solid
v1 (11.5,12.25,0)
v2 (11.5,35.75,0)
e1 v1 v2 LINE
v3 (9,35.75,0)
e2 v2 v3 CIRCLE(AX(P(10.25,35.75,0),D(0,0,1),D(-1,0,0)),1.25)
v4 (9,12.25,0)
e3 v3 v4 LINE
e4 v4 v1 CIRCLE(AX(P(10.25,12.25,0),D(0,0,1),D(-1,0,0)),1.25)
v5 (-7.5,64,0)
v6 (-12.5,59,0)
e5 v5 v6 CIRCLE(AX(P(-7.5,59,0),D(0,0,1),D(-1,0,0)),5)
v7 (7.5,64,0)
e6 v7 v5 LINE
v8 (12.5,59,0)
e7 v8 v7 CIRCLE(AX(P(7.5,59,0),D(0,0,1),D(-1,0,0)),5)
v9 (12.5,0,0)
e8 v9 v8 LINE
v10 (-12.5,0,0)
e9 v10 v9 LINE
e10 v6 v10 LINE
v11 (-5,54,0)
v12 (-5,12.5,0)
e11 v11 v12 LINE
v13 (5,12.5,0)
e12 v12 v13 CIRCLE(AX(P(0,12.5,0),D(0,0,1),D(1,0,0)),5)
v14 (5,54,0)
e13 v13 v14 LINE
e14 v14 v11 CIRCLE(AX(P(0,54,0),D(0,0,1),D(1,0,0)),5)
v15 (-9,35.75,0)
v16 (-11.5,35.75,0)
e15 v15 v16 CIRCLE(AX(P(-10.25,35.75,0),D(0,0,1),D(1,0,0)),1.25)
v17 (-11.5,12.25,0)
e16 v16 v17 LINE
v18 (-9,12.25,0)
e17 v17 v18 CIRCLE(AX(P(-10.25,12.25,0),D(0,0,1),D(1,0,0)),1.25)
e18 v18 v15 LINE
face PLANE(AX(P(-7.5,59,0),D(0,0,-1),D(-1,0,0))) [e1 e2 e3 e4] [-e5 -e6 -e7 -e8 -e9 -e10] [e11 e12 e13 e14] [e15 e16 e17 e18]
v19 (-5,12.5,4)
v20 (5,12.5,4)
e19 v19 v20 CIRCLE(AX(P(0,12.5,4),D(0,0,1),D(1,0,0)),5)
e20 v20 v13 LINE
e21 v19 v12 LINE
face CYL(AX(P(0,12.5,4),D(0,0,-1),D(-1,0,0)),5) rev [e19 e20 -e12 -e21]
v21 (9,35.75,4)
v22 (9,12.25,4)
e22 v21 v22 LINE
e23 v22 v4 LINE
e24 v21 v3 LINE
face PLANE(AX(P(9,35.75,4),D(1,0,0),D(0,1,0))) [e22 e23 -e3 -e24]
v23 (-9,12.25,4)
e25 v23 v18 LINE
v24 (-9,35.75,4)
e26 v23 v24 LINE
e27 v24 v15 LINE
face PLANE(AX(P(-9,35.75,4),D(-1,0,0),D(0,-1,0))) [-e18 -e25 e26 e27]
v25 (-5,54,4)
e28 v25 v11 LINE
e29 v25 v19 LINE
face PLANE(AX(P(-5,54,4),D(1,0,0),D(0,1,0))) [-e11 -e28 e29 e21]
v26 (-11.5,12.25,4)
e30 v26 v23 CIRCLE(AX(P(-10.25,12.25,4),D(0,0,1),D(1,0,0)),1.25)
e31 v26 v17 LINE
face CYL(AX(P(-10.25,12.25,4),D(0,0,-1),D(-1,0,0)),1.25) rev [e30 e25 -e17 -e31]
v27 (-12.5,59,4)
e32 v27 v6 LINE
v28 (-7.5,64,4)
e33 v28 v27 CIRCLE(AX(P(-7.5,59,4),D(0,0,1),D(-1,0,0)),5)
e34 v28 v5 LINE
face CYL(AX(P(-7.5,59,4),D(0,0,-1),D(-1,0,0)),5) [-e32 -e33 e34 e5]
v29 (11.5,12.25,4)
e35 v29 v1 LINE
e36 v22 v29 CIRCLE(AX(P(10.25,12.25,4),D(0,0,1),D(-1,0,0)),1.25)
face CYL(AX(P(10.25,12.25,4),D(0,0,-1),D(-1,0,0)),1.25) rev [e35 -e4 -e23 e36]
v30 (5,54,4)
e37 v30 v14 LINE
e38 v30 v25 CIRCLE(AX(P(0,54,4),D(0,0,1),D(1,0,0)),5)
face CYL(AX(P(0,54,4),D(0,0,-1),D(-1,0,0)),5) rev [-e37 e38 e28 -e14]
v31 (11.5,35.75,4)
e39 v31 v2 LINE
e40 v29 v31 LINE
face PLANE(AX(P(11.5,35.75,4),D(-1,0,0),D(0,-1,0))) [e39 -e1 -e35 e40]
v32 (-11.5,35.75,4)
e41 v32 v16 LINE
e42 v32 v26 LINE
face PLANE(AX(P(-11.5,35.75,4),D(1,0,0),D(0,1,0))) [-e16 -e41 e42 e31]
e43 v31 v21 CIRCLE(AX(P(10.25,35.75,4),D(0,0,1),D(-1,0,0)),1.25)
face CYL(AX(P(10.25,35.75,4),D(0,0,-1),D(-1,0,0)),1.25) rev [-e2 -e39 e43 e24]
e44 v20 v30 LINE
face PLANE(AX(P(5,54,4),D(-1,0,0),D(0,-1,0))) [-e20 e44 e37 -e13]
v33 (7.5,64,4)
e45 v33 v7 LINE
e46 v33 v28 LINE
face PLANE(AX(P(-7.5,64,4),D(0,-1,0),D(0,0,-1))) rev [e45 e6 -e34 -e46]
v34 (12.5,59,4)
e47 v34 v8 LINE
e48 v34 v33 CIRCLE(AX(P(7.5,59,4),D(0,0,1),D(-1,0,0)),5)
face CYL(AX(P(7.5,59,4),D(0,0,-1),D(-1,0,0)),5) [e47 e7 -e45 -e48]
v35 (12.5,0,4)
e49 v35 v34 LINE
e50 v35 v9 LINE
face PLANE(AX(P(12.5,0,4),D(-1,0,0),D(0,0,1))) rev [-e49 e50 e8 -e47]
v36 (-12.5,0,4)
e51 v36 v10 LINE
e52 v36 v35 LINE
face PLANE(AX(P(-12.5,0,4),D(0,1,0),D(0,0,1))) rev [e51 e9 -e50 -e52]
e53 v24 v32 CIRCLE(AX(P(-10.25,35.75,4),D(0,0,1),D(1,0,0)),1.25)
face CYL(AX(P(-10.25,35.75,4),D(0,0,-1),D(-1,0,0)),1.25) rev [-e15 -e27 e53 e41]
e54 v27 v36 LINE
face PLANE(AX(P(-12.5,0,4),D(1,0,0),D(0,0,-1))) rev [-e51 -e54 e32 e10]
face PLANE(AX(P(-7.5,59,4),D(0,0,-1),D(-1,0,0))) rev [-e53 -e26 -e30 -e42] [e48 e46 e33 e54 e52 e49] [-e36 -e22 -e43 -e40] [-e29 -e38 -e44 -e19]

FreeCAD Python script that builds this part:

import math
import FreeCAD as App
import Part
import Sketcher

V = App.Vector
Q = App.Units.Quantity

doc = App.newDocument("Part")
params = doc.addObject("Spreadsheet::Sheet", "Params")
for row, (alias, value) in enumerate([
    ("sketch1_radius", "5 mm"),
    ("sketch1_width", "25 mm"),
    ("sketch1_height", "59 mm"),
    ("sketch1_radius2", "1.25 mm"),
    ("sketch1_height2", "23.5 mm"),
    ("pad1_length", "4 mm"),
], start=1):
    params.set(f"A{row}", alias)
    params.set(f"B{row}", "=" + value)
    params.setAlias(f"B{row}", alias)

body = doc.addObject("PartDesign::Body", "Body")

# Sketch on XY plane
sketch1 = body.newObject("Sketcher::SketchObject", "Sketch")
sketch1.AttachmentSupport = (doc.getObject("XY_Plane"), [""])
sketch1.MapMode = "FlatFace"
sketch1.addGeometry(Part.LineSegment(V(-12.5, 0, 0), V(12.5, 0, 0)), False)
sketch1.addGeometry(Part.LineSegment(V(12.5, 0, 0), V(12.5, 59, 0)), False)
sketch1.addGeometry(Part.ArcOfCircle(Part.Circle(V(7.5, 59, 0), V(0, 0, 1), 5), math.radians(0), math.radians(90)), False)
sketch1.addGeometry(Part.LineSegment(V(7.5, 64, 0), V(-7.5, 64, 0)), False)
sketch1.addGeometry(Part.ArcOfCircle(Part.Circle(V(-7.5, 59, 0), V(0, 0, 1), 5), math.radians(90), math.radians(180)), False)
sketch1.addGeometry(Part.LineSegment(V(-12.5, 59, 0), V(-12.5, 0, 0)), False)
sketch1.addGeometry(Part.ArcOfCircle(Part.Circle(V(-10.2, 35.8, 0), V(0, 0, 1), 1.2), math.radians(0), math.radians(180)), False)
sketch1.addGeometry(Part.LineSegment(V(-9, 35.8, 0), V(-9, 12.2, 0)), False)
sketch1.addGeometry(Part.ArcOfCircle(Part.Circle(V(-10.2, 12.2, 0), V(0, 0, 1), 1.2), math.radians(180), math.radians(360)), False)
sketch1.addGeometry(Part.LineSegment(V(-11.5, 12.2, 0), V(-11.5, 35.8, 0)), False)
sketch1.addGeometry(Part.ArcOfCircle(Part.Circle(V(0, 54, 0), V(0, 0, 1), 5), math.radians(0), math.radians(180)), False)
sketch1.addGeometry(Part.LineSegment(V(5, 54, 0), V(5, 12.5, 0)), False)
sketch1.addGeometry(Part.ArcOfCircle(Part.Circle(V(0, 12.5, 0), V(0, 0, 1), 5), math.radians(180), math.radians(360)), False)
sketch1.addGeometry(Part.LineSegment(V(-5, 12.5, 0), V(-5, 54, 0)), False)
sketch1.addGeometry(Part.LineSegment(V(9, 12.2, 0), V(9, 35.8, 0)), False)
sketch1.addGeometry(Part.ArcOfCircle(Part.Circle(V(10.2, 35.8, 0), V(0, 0, 1), 1.2), math.radians(0), math.radians(180)), False)
sketch1.addGeometry(Part.LineSegment(V(11.5, 35.8, 0), V(11.5, 12.2, 0)), False)
sketch1.addGeometry(Part.ArcOfCircle(Part.Circle(V(10.2, 12.2, 0), V(0, 0, 1), 1.2), math.radians(180), math.radians(360)), False)
sketch1.addConstraint(Sketcher.Constraint("Coincident", 0, 2, 1, 1))
sketch1.addConstraint(Sketcher.Constraint("Tangent", 1, 2, 2, 1))
sketch1.addConstraint(Sketcher.Constraint("Tangent", 2, 2, 3, 1))
sketch1.addConstraint(Sketcher.Constraint("Tangent", 3, 2, 4, 1))
sketch1.addConstraint(Sketcher.Constraint("Tangent", 4, 2, 5, 1))
sketch1.addConstraint(Sketcher.Constraint("Coincident", 5, 2, 0, 1))
sketch1.addConstraint(Sketcher.Constraint("Tangent", 6, 1, 7, 1))
sketch1.addConstraint(Sketcher.Constraint("Tangent", 7, 2, 8, 2))
sketch1.addConstraint(Sketcher.Constraint("Tangent", 8, 1, 9, 1))
sketch1.addConstraint(Sketcher.Constraint("Tangent", 9, 2, 6, 2))
sketch1.addConstraint(Sketcher.Constraint("Tangent", 10, 1, 11, 1))
sketch1.addConstraint(Sketcher.Constraint("Tangent", 11, 2, 12, 2))
sketch1.addConstraint(Sketcher.Constraint("Tangent", 12, 1, 13, 1))
sketch1.addConstraint(Sketcher.Constraint("Tangent", 13, 2, 10, 2))
sketch1.addConstraint(Sketcher.Constraint("Tangent", 14, 2, 15, 2))
sketch1.addConstraint(Sketcher.Constraint("Tangent", 15, 1, 16, 1))
sketch1.addConstraint(Sketcher.Constraint("Tangent", 16, 2, 17, 2))
sketch1.addConstraint(Sketcher.Constraint("Tangent", 17, 1, 14, 1))
sketch1.addConstraint(Sketcher.Constraint("Horizontal", 0))
sketch1.addConstraint(Sketcher.Constraint("Vertical", 1))
sketch1.addConstraint(Sketcher.Constraint("Horizontal", 3))
sketch1.addConstraint(Sketcher.Constraint("Vertical", 5))
sketch1.addConstraint(Sketcher.Constraint("Vertical", 7))
sketch1.addConstraint(Sketcher.Constraint("Vertical", 9))
sketch1.addConstraint(Sketcher.Constraint("Vertical", 11))
sketch1.addConstraint(Sketcher.Constraint("Vertical", 13))
sketch1.addConstraint(Sketcher.Constraint("Vertical", 14))
sketch1.addConstraint(Sketcher.Constraint("Vertical", 16))
sketch1.addConstraint(Sketcher.Constraint("Equal", 2, 4))
sketch1.addConstraint(Sketcher.Constraint("Equal", 4, 10))
sketch1.addConstraint(Sketcher.Constraint("Equal", 8, 15))
sketch1.addConstraint(Sketcher.Constraint("Symmetric", 0, 2, 5, 2, -1, 1))
sketch1.addConstraint(Sketcher.Constraint("Symmetric", 6, 3, 15, 3, -2))
sketch1.addConstraint(Sketcher.Constraint("PointOnObject", 10, 3, -2))
sketch1.addConstraint(Sketcher.Constraint("Horizontal", 8, 3, 17, 3))
sketch1.addConstraint(Sketcher.Constraint("Radius", 2, Q("5 mm")))
sketch1.addConstraint(Sketcher.Constraint("DistanceX", 0, 1, 0, 2, Q("25 mm")))
sketch1.addConstraint(Sketcher.Constraint("DistanceY", 1, 1, 1, 2, Q("59 mm")))
sketch1.addConstraint(Sketcher.Constraint("Radius", 6, Q("1.25 mm")))
sketch1.addConstraint(Sketcher.Constraint("DistanceY", 7, 2, 7, 1, Q("23.5 mm")))
sketch1.addConstraint(Sketcher.Constraint("DistanceY", 11, 2, 11, 1, Q("41.5 mm")))
sketch1.addConstraint(Sketcher.Constraint("DistanceY", -1, 1, 10, 3, Q("54 mm")))
sketch1.addConstraint(Sketcher.Constraint("DistanceX", 6, 1, -1, 1, Q("9 mm")))
sketch1.addConstraint(Sketcher.Constraint("DistanceY", -1, 1, 6, 3, Q("35.75 mm")))
sketch1.setExpression("Constraints[35]", "Params.sketch1_radius")
sketch1.setExpression("Constraints[36]", "Params.sketch1_width")
sketch1.setExpression("Constraints[37]", "Params.sketch1_height")
sketch1.setExpression("Constraints[38]", "Params.sketch1_radius2")
sketch1.setExpression("Constraints[39]", "Params.sketch1_height2")
pad1 = body.newObject("PartDesign::Pad", "Pad")
pad1.Profile = sketch1
pad1.setExpression("Length", "Params.pad1_length")

doc.recompute()
